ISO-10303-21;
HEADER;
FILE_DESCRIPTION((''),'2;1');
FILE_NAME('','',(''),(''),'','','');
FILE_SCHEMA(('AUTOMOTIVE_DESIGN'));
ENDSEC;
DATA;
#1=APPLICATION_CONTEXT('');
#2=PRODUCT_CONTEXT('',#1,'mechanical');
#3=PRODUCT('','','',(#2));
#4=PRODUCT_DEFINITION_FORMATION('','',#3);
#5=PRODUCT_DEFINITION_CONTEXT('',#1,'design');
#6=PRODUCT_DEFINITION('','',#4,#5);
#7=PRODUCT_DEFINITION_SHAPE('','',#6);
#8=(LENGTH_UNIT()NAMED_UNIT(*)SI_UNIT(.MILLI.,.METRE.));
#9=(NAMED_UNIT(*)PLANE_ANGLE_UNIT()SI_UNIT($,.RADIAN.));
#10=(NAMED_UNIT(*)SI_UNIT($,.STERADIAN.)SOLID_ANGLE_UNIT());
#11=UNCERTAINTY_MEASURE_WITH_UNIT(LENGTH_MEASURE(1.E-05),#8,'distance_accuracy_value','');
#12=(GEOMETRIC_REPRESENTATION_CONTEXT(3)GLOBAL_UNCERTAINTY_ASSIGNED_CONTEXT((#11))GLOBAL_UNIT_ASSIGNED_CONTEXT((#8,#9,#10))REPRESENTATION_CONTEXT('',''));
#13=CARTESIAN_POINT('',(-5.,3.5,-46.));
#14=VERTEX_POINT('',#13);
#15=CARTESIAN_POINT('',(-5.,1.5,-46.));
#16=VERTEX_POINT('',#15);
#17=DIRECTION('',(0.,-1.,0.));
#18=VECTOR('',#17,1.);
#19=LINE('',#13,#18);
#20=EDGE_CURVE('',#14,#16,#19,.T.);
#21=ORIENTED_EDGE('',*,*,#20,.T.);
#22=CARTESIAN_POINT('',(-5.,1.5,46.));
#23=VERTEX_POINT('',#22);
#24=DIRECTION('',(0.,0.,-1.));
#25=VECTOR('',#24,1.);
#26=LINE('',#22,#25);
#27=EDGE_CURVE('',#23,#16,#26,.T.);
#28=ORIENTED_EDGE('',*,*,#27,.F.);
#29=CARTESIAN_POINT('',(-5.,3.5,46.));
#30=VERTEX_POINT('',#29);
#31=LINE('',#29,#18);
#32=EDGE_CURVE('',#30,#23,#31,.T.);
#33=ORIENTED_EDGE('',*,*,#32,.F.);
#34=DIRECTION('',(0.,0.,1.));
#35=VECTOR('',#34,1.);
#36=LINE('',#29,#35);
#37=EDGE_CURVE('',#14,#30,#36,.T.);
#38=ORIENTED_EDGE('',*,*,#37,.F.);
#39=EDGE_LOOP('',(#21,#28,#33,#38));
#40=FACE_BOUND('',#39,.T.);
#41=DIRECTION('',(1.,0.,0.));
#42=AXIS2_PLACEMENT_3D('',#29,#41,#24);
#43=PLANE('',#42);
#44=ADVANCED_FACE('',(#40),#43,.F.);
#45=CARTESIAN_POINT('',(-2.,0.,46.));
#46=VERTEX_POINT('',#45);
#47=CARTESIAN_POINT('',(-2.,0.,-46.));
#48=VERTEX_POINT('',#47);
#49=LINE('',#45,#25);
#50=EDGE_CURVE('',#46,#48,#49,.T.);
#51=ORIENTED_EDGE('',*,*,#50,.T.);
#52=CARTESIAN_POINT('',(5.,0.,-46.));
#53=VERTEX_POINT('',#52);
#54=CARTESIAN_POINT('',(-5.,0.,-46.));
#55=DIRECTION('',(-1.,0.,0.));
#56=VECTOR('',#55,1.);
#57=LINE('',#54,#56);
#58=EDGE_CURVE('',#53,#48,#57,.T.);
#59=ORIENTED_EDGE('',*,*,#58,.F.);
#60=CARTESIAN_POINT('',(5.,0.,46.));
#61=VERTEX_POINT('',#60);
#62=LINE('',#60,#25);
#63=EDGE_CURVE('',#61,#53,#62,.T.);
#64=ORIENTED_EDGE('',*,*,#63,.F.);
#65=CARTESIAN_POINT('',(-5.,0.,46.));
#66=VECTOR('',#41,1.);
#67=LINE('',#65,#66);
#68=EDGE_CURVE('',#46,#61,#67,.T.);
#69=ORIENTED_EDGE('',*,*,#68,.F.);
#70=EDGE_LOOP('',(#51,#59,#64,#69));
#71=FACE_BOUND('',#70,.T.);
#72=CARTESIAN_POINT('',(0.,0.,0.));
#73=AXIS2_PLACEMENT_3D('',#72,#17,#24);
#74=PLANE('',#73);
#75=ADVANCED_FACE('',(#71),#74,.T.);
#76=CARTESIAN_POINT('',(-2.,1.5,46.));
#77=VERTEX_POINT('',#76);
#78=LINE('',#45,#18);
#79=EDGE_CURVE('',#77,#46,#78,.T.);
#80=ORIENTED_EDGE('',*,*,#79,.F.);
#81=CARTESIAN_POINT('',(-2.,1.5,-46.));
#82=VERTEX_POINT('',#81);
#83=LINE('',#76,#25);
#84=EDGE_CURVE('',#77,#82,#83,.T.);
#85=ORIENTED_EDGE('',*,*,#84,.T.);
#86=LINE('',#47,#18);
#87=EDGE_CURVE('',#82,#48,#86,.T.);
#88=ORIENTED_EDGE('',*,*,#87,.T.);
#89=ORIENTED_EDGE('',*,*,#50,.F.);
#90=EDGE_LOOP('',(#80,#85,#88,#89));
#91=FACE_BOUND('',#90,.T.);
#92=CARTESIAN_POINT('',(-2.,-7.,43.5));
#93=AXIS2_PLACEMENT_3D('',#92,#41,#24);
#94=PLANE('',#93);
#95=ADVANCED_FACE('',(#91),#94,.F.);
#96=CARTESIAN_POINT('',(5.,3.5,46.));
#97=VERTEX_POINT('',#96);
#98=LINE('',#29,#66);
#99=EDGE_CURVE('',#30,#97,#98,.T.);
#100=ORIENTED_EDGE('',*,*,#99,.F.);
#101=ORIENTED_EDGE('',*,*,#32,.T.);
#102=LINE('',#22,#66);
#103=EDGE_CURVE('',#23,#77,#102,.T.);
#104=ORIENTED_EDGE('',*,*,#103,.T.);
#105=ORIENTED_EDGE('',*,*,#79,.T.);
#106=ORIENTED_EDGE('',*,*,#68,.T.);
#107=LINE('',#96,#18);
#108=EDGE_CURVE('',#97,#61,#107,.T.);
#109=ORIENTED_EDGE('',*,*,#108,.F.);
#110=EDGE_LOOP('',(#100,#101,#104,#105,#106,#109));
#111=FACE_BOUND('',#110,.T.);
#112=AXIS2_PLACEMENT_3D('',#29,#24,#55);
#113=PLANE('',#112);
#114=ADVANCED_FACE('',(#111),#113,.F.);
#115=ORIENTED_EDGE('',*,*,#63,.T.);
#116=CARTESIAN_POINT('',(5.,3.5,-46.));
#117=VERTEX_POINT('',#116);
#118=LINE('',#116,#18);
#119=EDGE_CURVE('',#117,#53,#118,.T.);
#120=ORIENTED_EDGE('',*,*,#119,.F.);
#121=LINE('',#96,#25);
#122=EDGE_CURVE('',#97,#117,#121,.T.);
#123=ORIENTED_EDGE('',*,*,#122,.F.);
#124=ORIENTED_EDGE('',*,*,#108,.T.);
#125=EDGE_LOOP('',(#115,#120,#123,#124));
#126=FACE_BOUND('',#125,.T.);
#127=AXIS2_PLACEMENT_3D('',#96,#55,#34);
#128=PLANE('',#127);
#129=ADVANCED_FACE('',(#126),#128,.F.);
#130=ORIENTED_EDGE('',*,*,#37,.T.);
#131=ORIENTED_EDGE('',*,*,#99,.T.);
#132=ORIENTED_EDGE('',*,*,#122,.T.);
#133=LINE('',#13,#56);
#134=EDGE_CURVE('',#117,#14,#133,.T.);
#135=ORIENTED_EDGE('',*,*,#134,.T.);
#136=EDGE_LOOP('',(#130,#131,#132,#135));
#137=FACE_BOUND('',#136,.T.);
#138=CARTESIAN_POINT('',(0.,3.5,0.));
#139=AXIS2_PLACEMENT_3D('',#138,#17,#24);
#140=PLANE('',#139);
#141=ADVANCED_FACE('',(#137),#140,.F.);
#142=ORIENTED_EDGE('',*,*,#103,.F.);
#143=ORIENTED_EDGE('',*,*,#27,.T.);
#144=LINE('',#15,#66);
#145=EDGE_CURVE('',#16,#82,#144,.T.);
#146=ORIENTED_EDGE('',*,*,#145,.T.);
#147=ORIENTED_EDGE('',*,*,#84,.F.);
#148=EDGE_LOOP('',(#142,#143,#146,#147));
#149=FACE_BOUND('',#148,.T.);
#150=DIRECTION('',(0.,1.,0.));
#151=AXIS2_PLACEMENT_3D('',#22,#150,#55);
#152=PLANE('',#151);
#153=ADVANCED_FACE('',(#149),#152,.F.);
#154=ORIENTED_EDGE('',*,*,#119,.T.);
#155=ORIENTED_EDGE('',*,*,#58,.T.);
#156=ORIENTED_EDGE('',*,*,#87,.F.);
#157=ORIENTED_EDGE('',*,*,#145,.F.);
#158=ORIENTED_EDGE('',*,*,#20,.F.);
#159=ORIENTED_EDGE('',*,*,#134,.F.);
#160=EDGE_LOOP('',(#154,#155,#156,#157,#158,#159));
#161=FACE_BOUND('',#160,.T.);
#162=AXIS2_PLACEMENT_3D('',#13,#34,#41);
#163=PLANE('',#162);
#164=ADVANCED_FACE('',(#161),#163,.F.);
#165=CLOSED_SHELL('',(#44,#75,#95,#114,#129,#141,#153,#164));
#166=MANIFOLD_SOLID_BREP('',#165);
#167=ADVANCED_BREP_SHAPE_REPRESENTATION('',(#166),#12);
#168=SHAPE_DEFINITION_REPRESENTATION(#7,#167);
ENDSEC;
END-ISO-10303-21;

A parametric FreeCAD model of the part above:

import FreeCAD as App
import Part
import Sketcher
from FreeCAD import Vector

doc = App.newDocument("Part")
params = doc.addObject("Spreadsheet::Sheet", "Params")
for row, (alias, value) in enumerate([
    ("sketch1_width", "10 mm"),
    ("sketch1_height", "92 mm"),
    ("pad1_length", "3.5 mm"),
    ("sketch2_width", "7 mm"),
    ("pad2_length", "7 mm"),
    ("sketch3_diameter", "3 mm"),
    ("pocket1_length", "7 mm"),
    ("sketch4_diameter", "4.3 mm"),
    ("pocket2_length", "1 mm"),
    ("sketch5_width", "3 mm"),
    ("sketch5_height", "1.5 mm"),
    ("pocket3_length", "92 mm"),
    ("pocket4_length", "10 mm"),
], start=1):
    params.set(f"A{row}", alias)
    params.set(f"B{row}", "=" + value)
    params.setAlias(f"B{row}", alias)

body = doc.addObject("PartDesign::Body", "Body")

sketch1 = doc.addObject("Sketcher::SketchObject", "Sketch")
body.addObject(sketch1)
sketch1.AttachmentSupport = (doc.XZ_Plane, [""])
sketch1.MapMode = "FlatFace"
sketch1.addGeometry(Part.LineSegment(Vector(-5, -46, 0), Vector(-5, 46, 0)), False)
sketch1.addGeometry(Part.LineSegment(Vector(-5, 46, 0), Vector(5, 46, 0)), False)
sketch1.addGeometry(Part.LineSegment(Vector(5, 46, 0), Vector(5, -46, 0)), False)
sketch1.addGeometry(Part.LineSegment(Vector(5, -46, 0), Vector(-5, -46, 0)), False)
sketch1.addConstraint(Sketcher.Constraint("Coincident", 0, 2, 1, 1))
sketch1.addConstraint(Sketcher.Constraint("Coincident", 1, 2, 2, 1))
sketch1.addConstraint(Sketcher.Constraint("Coincident", 2, 2, 3, 1))
sketch1.addConstraint(Sketcher.Constraint("Coincident", 3, 2, 0, 1))
sketch1.addConstraint(Sketcher.Constraint("Vertical", 0))
sketch1.addConstraint(Sketcher.Constraint("Horizontal", 1))
sketch1.addConstraint(Sketcher.Constraint("Vertical", 2))
sketch1.addConstraint(Sketcher.Constraint("Horizontal", 3))
sketch1.addConstraint(Sketcher.Constraint("Symmetric", 0, 2, 2, 2, -1, 1))
sketch1.addConstraint(Sketcher.Constraint("DistanceX", 1, 1, 1, 2, 10.0))
sketch1.addConstraint(Sketcher.Constraint("DistanceY", 0, 1, 0, 2, 92.0))
sketch1.setExpression("Constraints[9]", "Params.sketch1_width")
sketch1.setExpression("Constraints[10]", "Params.sketch1_height")
pad1 = doc.addObject("PartDesign::Pad", "Pad")
body.addObject(pad1)
pad1.Profile = sketch1
pad1.setExpression("Length", "Params.pad1_length")
pad1.Reversed = True

sketch2 = doc.addObject("Sketcher::SketchObject", "Sketch001")
body.addObject(sketch2)
sketch2.AttachmentSupport = (doc.XZ_Plane, [""])
sketch2.MapMode = "FlatFace"
sketch2.addGeometry(Part.LineSegment(Vector(-2, 44, 0), Vector(-2, 36, 0)), False)
sketch2.addGeometry(Part.LineSegment(Vector(-2, 36, 0), Vector(5, 36, 0)), False)
sketch2.addGeometry(Part.LineSegment(Vector(5, 36, 0), Vector(5, 44, 0)), False)
sketch2.addGeometry(Part.LineSegment(Vector(5, 44, 0), Vector(-2, 44, 0)), False)
sketch2.addGeometry(Part.LineSegment(Vector(-2, 4, 0), Vector(-2, -4, 0)), False)
sketch2.addGeometry(Part.LineSegment(Vector(-2, -4, 0), Vector(5, -4, 0)), False)
sketch2.addGeometry(Part.LineSegment(Vector(5, -4, 0), Vector(5, 4, 0)), False)
sketch2.addGeometry(Part.LineSegment(Vector(5, 4, 0), Vector(-2, 4, 0)), False)
sketch2.addGeometry(Part.LineSegment(Vector(-2, -36, 0), Vector(-2, -44, 0)), False)
sketch2.addGeometry(Part.LineSegment(Vector(-2, -44, 0), Vector(5, -44, 0)), False)
sketch2.addGeometry(Part.LineSegment(Vector(5, -44, 0), Vector(5, -36, 0)), False)
sketch2.addGeometry(Part.LineSegment(Vector(5, -36, 0), Vector(-2, -36, 0)), False)
sketch2.addConstraint(Sketcher.Constraint("Coincident", 0, 2, 1, 1))
sketch2.addConstraint(Sketcher.Constraint("Coincident", 1, 2, 2, 1))
sketch2.addConstraint(Sketcher.Constraint("Coincident", 2, 2, 3, 1))
sketch2.addConstraint(Sketcher.Constraint("Coincident", 3, 2, 0, 1))
sketch2.addConstraint(Sketcher.Constraint("Coincident", 4, 2, 5, 1))
sketch2.addConstraint(Sketcher.Constraint("Coincident", 5, 2, 6, 1))
sketch2.addConstraint(Sketcher.Constraint("Coincident", 6, 2, 7, 1))
sketch2.addConstraint(Sketcher.Constraint("Coincident", 7, 2, 4, 1))
sketch2.addConstraint(Sketcher.Constraint("Coincident", 8, 2, 9, 1))
sketch2.addConstraint(Sketcher.Constraint("Coincident", 9, 2, 10, 1))
sketch2.addConstraint(Sketcher.Constraint("Coincident", 10, 2, 11, 1))
sketch2.addConstraint(Sketcher.Constraint("Coincident", 11, 2, 8, 1))
sketch2.addConstraint(Sketcher.Constraint("Vertical", 0))
sketch2.addConstraint(Sketcher.Constraint("Horizontal", 1))
sketch2.addConstraint(Sketcher.Constraint("Vertical", 2))
sketch2.addConstraint(Sketcher.Constraint("Horizontal", 3))
sketch2.addConstraint(Sketcher.Constraint("Vertical", 4))
sketch2.addConstraint(Sketcher.Constraint("Horizontal", 5))
sketch2.addConstraint(Sketcher.Constraint("Vertical", 6))
sketch2.addConstraint(Sketcher.Constraint("Horizontal", 7))
sketch2.addConstraint(Sketcher.Constraint("Vertical", 8))
sketch2.addConstraint(Sketcher.Constraint("Horizontal", 9))
sketch2.addConstraint(Sketcher.Constraint("Vertical", 10))
sketch2.addConstraint(Sketcher.Constraint("Horizontal", 11))
sketch2.addConstraint(Sketcher.Constraint("Symmetric", 3, 2, 8, 2, -1))
sketch2.addConstraint(Sketcher.Constraint("Symmetric", 1, 2, 10, 2, -1))
sketch2.addConstraint(Sketcher.Constraint("Vertical", 3, 2, 4, 2))
sketch2.addConstraint(Sketcher.Constraint("Vertical", 2, 2, 5, 2))
sketch2.addConstraint(Sketcher.Constraint("Equal", 11, 0))
sketch2.addConstraint(Sketcher.Constraint("Equal", 2, 4))
sketch2.addConstraint(Sketcher.Constraint("DistanceX", 1, 1, 1, 2, 7.0))
sketch2.addConstraint(Sketcher.Constraint("DistanceX", 0, 2, -1, 1, 2.0))
sketch2.addConstraint(Sketcher.Constraint("DistanceY", 4, 2, 0, 2, 40.0))
sketch2.addConstraint(Sketcher.Constraint("DistanceY", 8, 2, 4, 2, 40.0))
sketch2.setExpression("Constraints[30]", "Params.sketch2_width")
pad2 = doc.addObject("PartDesign::Pad", "Pad001")
body.addObject(pad2)
pad2.Profile = sketch2
pad2.setExpression("Length", "Params.pad2_length")

sketch3 = doc.addObject("Sketcher::SketchObject", "Sketch002")
body.addObject(sketch3)
sketch3.AttachmentSupport = (doc.YZ_Plane, [""])
sketch3.MapMode = "FlatFace"
sketch3.AttachmentOffset = App.Placement(Vector(0, 0, 5), App.Rotation())
sketch3.addGeometry(Part.Circle(Vector(-3.5, 40, 0), Vector(0, 0, 1), 1.5), False)
sketch3.addGeometry(Part.Circle(Vector(-3.5, 0, 0), Vector(0, 0, 1), 1.5), False)
sketch3.addGeometry(Part.Circle(Vector(-3.5, -40, 0), Vector(0, 0, 1), 1.5), False)
sketch3.addConstraint(Sketcher.Constraint("Equal", 0, 1))
sketch3.addConstraint(Sketcher.Constraint("Equal", 1, 2))
sketch3.addConstraint(Sketcher.Constraint("Symmetric", 0, 3, 2, 3, -1))
sketch3.addConstraint(Sketcher.Constraint("PointOnObject", 1, 3, -1))
sketch3.addConstraint(Sketcher.Constraint("Vertical", 0, 3, 1, 3))
sketch3.addConstraint(Sketcher.Constraint("Diameter", 0, 3.0))
sketch3.addConstraint(Sketcher.Constraint("DistanceY", -1, 1, 0, 3, 40.0))
sketch3.addConstraint(Sketcher.Constraint("DistanceX", 0, 3, -1, 1, 3.5))
sketch3.setExpression("Constraints[5]", "Params.sketch3_diameter")
pocket1 = doc.addObject("PartDesign::Pocket", "Pocket")
body.addObject(pocket1)
pocket1.Profile = sketch3
pocket1.setExpression("Length", "Params.pocket1_length")

sketch4 = doc.addObject("Sketcher::SketchObject", "Sketch003")
body.addObject(sketch4)
sketch4.AttachmentSupport = (doc.YZ_Plane, [""])
sketch4.MapMode = "FlatFace"
sketch4.AttachmentOffset = App.Placement(Vector(0, 0, -2), App.Rotation())
sketch4.addGeometry(Part.Circle(Vector(-3.5, -40, 0), Vector(0, 0, 1), 2.1), False)
sketch4.addGeometry(Part.Circle(Vector(-3.5, 0, 0), Vector(0, 0, 1), 2.1), False)
sketch4.addGeometry(Part.Circle(Vector(-3.5, 40, 0), Vector(0, 0, 1), 2.1), False)
sketch4.addConstraint(Sketcher.Constraint("Equal", 0, 1))
sketch4.addConstraint(Sketcher.Constraint("Equal", 1, 2))
sketch4.addConstraint(Sketcher.Constraint("Symmetric", 0, 3, 2, 3, -1))
sketch4.addConstraint(Sketcher.Constraint("PointOnObject", 1, 3, -1))
sketch4.addConstraint(Sketcher.Constraint("Vertical", 0, 3, 1, 3))
sketch4.addConstraint(Sketcher.Constraint("Diameter", 0, 4.3))
sketch4.addConstraint(Sketcher.Constraint("DistanceY", 0, 3, -1, 1, 40.0))
sketch4.addConstraint(Sketcher.Constraint("DistanceX", 0, 3, -1, 1, 3.5))
sketch4.setExpression("Constraints[5]", "Params.sketch4_diameter")
pocket2 = doc.addObject("PartDesign::Pocket", "Pocket001")
body.addObject(pocket2)
pocket2.Profile = sketch4
pocket2.setExpression("Length", "Params.pocket2_length")
pocket2.Reversed = True

sketch5 = doc.addObject("Sketcher::SketchObject", "Sketch004")
body.addObject(sketch5)
sketch5.AttachmentSupport = (doc.XY_Plane, [""])
sketch5.MapMode = "FlatFace"
sketch5.AttachmentOffset = App.Placement(Vector(0, 0, -46), App.Rotation())
sketch5.addGeometry(Part.LineSegment(Vector(-2, 1.5, 0), Vector(-2, 0, 0)), False)
sketch5.addGeometry(Part.LineSegment(Vector(-2, 0, 0), Vector(-5, 0, 0)), False)
sketch5.addGeometry(Part.LineSegment(Vector(-5, 0, 0), Vector(-5, 1.5, 0)), False)
sketch5.addGeometry(Part.LineSegment(Vector(-5, 1.5, 0), Vector(-2, 1.5, 0)), False)
sketch5.addConstraint(Sketcher.Constraint("Coincident", 0, 2, 1, 1))
sketch5.addConstraint(Sketcher.Constraint("Coincident", 1, 2, 2, 1))
sketch5.addConstraint(Sketcher.Constraint("Coincident", 2, 2, 3, 1))
sketch5.addConstraint(Sketcher.Constraint("Coincident", 3, 2, 0, 1))
sketch5.addConstraint(Sketcher.Constraint("Vertical", 0))
sketch5.addConstraint(Sketcher.Constraint("Horizontal", 1))
sketch5.addConstraint(Sketcher.Constraint("Vertical", 2))
sketch5.addConstraint(Sketcher.Constraint("Horizontal", 3))
sketch5.addConstraint(Sketcher.Constraint("PointOnObject", 0, 2, -1))
sketch5.addConstraint(Sketcher.Constraint("DistanceX", 1, 2, 1, 1, 3.0))
sketch5.addConstraint(Sketcher.Constraint("DistanceY", 0, 2, 0, 1, 1.5))
sketch5.addConstraint(Sketcher.Constraint("DistanceX", 0, 2, -1, 1, 2.0))
sketch5.setExpression("Constraints[9]", "Params.sketch5_width")
sketch5.setExpression("Constraints[10]", "Params.sketch5_height")
pocket3 = doc.addObject("PartDesign::Pocket", "Pocket002")
body.addObject(pocket3)
pocket3.Profile = sketch5
pocket3.setExpression("Length", "Params.pocket3_length")
pocket3.Reversed = True

sketch6 = doc.addObject("Sketcher::SketchObject", "Sketch005")
body.addObject(sketch6)
sketch6.AttachmentSupport = (doc.XZ_Plane, [""])
sketch6.MapMode = "FlatFace"
sketch6.addGeometry(Part.LineSegment(Vector(-19, 49, 0), Vector(-19, -48, 0)), False)
sketch6.addGeometry(Part.LineSegment(Vector(-19, -48, 0), Vector(11, -48, 0)), False)
sketch6.addGeometry(Part.LineSegment(Vector(11, -48, 0), Vector(11, 49, 0)), False)
sketch6.addGeometry(Part.LineSegment(Vector(11, 49, 0), Vector(-19, 49, 0)), False)
sketch6.addConstraint(Sketcher.Constraint("Coincident", 0, 2, 1, 1))
sketch6.addConstraint(Sketcher.Constraint("Coincident", 1, 2, 2, 1))
sketch6.addConstraint(Sketcher.Constraint("Coincident", 2, 2, 3, 1))
sketch6.addConstraint(Sketcher.Constraint("Coincident", 3, 2, 0, 1))
sketch6.addConstraint(Sketcher.Constraint("Vertical", 0))
sketch6.addConstraint(Sketcher.Constraint("Horizontal", 1))
sketch6.addConstraint(Sketcher.Constraint("Vertical", 2))
sketch6.addConstraint(Sketcher.Constraint("Horizontal", 3))
sketch6.addConstraint(Sketcher.Constraint("DistanceX", 1, 1, 1, 2, 30.020814))
sketch6.addConstraint(Sketcher.Constraint("DistanceY", 0, 2, 0, 1, 96.833093))
sketch6.addConstraint(Sketcher.Constraint("DistanceY", 0, 2, -1, 1, 48.03329))
sketch6.addConstraint(Sketcher.Constraint("DistanceX", -1, 1, 1, 2, 11.241862))
pocket4 = doc.addObject("PartDesign::Pocket", "Pocket003")
body.addObject(pocket4)
pocket4.Profile = sketch6
pocket4.setExpression("Length", "Params.pocket4_length")
pocket4.Reversed = True

doc.recompute()
